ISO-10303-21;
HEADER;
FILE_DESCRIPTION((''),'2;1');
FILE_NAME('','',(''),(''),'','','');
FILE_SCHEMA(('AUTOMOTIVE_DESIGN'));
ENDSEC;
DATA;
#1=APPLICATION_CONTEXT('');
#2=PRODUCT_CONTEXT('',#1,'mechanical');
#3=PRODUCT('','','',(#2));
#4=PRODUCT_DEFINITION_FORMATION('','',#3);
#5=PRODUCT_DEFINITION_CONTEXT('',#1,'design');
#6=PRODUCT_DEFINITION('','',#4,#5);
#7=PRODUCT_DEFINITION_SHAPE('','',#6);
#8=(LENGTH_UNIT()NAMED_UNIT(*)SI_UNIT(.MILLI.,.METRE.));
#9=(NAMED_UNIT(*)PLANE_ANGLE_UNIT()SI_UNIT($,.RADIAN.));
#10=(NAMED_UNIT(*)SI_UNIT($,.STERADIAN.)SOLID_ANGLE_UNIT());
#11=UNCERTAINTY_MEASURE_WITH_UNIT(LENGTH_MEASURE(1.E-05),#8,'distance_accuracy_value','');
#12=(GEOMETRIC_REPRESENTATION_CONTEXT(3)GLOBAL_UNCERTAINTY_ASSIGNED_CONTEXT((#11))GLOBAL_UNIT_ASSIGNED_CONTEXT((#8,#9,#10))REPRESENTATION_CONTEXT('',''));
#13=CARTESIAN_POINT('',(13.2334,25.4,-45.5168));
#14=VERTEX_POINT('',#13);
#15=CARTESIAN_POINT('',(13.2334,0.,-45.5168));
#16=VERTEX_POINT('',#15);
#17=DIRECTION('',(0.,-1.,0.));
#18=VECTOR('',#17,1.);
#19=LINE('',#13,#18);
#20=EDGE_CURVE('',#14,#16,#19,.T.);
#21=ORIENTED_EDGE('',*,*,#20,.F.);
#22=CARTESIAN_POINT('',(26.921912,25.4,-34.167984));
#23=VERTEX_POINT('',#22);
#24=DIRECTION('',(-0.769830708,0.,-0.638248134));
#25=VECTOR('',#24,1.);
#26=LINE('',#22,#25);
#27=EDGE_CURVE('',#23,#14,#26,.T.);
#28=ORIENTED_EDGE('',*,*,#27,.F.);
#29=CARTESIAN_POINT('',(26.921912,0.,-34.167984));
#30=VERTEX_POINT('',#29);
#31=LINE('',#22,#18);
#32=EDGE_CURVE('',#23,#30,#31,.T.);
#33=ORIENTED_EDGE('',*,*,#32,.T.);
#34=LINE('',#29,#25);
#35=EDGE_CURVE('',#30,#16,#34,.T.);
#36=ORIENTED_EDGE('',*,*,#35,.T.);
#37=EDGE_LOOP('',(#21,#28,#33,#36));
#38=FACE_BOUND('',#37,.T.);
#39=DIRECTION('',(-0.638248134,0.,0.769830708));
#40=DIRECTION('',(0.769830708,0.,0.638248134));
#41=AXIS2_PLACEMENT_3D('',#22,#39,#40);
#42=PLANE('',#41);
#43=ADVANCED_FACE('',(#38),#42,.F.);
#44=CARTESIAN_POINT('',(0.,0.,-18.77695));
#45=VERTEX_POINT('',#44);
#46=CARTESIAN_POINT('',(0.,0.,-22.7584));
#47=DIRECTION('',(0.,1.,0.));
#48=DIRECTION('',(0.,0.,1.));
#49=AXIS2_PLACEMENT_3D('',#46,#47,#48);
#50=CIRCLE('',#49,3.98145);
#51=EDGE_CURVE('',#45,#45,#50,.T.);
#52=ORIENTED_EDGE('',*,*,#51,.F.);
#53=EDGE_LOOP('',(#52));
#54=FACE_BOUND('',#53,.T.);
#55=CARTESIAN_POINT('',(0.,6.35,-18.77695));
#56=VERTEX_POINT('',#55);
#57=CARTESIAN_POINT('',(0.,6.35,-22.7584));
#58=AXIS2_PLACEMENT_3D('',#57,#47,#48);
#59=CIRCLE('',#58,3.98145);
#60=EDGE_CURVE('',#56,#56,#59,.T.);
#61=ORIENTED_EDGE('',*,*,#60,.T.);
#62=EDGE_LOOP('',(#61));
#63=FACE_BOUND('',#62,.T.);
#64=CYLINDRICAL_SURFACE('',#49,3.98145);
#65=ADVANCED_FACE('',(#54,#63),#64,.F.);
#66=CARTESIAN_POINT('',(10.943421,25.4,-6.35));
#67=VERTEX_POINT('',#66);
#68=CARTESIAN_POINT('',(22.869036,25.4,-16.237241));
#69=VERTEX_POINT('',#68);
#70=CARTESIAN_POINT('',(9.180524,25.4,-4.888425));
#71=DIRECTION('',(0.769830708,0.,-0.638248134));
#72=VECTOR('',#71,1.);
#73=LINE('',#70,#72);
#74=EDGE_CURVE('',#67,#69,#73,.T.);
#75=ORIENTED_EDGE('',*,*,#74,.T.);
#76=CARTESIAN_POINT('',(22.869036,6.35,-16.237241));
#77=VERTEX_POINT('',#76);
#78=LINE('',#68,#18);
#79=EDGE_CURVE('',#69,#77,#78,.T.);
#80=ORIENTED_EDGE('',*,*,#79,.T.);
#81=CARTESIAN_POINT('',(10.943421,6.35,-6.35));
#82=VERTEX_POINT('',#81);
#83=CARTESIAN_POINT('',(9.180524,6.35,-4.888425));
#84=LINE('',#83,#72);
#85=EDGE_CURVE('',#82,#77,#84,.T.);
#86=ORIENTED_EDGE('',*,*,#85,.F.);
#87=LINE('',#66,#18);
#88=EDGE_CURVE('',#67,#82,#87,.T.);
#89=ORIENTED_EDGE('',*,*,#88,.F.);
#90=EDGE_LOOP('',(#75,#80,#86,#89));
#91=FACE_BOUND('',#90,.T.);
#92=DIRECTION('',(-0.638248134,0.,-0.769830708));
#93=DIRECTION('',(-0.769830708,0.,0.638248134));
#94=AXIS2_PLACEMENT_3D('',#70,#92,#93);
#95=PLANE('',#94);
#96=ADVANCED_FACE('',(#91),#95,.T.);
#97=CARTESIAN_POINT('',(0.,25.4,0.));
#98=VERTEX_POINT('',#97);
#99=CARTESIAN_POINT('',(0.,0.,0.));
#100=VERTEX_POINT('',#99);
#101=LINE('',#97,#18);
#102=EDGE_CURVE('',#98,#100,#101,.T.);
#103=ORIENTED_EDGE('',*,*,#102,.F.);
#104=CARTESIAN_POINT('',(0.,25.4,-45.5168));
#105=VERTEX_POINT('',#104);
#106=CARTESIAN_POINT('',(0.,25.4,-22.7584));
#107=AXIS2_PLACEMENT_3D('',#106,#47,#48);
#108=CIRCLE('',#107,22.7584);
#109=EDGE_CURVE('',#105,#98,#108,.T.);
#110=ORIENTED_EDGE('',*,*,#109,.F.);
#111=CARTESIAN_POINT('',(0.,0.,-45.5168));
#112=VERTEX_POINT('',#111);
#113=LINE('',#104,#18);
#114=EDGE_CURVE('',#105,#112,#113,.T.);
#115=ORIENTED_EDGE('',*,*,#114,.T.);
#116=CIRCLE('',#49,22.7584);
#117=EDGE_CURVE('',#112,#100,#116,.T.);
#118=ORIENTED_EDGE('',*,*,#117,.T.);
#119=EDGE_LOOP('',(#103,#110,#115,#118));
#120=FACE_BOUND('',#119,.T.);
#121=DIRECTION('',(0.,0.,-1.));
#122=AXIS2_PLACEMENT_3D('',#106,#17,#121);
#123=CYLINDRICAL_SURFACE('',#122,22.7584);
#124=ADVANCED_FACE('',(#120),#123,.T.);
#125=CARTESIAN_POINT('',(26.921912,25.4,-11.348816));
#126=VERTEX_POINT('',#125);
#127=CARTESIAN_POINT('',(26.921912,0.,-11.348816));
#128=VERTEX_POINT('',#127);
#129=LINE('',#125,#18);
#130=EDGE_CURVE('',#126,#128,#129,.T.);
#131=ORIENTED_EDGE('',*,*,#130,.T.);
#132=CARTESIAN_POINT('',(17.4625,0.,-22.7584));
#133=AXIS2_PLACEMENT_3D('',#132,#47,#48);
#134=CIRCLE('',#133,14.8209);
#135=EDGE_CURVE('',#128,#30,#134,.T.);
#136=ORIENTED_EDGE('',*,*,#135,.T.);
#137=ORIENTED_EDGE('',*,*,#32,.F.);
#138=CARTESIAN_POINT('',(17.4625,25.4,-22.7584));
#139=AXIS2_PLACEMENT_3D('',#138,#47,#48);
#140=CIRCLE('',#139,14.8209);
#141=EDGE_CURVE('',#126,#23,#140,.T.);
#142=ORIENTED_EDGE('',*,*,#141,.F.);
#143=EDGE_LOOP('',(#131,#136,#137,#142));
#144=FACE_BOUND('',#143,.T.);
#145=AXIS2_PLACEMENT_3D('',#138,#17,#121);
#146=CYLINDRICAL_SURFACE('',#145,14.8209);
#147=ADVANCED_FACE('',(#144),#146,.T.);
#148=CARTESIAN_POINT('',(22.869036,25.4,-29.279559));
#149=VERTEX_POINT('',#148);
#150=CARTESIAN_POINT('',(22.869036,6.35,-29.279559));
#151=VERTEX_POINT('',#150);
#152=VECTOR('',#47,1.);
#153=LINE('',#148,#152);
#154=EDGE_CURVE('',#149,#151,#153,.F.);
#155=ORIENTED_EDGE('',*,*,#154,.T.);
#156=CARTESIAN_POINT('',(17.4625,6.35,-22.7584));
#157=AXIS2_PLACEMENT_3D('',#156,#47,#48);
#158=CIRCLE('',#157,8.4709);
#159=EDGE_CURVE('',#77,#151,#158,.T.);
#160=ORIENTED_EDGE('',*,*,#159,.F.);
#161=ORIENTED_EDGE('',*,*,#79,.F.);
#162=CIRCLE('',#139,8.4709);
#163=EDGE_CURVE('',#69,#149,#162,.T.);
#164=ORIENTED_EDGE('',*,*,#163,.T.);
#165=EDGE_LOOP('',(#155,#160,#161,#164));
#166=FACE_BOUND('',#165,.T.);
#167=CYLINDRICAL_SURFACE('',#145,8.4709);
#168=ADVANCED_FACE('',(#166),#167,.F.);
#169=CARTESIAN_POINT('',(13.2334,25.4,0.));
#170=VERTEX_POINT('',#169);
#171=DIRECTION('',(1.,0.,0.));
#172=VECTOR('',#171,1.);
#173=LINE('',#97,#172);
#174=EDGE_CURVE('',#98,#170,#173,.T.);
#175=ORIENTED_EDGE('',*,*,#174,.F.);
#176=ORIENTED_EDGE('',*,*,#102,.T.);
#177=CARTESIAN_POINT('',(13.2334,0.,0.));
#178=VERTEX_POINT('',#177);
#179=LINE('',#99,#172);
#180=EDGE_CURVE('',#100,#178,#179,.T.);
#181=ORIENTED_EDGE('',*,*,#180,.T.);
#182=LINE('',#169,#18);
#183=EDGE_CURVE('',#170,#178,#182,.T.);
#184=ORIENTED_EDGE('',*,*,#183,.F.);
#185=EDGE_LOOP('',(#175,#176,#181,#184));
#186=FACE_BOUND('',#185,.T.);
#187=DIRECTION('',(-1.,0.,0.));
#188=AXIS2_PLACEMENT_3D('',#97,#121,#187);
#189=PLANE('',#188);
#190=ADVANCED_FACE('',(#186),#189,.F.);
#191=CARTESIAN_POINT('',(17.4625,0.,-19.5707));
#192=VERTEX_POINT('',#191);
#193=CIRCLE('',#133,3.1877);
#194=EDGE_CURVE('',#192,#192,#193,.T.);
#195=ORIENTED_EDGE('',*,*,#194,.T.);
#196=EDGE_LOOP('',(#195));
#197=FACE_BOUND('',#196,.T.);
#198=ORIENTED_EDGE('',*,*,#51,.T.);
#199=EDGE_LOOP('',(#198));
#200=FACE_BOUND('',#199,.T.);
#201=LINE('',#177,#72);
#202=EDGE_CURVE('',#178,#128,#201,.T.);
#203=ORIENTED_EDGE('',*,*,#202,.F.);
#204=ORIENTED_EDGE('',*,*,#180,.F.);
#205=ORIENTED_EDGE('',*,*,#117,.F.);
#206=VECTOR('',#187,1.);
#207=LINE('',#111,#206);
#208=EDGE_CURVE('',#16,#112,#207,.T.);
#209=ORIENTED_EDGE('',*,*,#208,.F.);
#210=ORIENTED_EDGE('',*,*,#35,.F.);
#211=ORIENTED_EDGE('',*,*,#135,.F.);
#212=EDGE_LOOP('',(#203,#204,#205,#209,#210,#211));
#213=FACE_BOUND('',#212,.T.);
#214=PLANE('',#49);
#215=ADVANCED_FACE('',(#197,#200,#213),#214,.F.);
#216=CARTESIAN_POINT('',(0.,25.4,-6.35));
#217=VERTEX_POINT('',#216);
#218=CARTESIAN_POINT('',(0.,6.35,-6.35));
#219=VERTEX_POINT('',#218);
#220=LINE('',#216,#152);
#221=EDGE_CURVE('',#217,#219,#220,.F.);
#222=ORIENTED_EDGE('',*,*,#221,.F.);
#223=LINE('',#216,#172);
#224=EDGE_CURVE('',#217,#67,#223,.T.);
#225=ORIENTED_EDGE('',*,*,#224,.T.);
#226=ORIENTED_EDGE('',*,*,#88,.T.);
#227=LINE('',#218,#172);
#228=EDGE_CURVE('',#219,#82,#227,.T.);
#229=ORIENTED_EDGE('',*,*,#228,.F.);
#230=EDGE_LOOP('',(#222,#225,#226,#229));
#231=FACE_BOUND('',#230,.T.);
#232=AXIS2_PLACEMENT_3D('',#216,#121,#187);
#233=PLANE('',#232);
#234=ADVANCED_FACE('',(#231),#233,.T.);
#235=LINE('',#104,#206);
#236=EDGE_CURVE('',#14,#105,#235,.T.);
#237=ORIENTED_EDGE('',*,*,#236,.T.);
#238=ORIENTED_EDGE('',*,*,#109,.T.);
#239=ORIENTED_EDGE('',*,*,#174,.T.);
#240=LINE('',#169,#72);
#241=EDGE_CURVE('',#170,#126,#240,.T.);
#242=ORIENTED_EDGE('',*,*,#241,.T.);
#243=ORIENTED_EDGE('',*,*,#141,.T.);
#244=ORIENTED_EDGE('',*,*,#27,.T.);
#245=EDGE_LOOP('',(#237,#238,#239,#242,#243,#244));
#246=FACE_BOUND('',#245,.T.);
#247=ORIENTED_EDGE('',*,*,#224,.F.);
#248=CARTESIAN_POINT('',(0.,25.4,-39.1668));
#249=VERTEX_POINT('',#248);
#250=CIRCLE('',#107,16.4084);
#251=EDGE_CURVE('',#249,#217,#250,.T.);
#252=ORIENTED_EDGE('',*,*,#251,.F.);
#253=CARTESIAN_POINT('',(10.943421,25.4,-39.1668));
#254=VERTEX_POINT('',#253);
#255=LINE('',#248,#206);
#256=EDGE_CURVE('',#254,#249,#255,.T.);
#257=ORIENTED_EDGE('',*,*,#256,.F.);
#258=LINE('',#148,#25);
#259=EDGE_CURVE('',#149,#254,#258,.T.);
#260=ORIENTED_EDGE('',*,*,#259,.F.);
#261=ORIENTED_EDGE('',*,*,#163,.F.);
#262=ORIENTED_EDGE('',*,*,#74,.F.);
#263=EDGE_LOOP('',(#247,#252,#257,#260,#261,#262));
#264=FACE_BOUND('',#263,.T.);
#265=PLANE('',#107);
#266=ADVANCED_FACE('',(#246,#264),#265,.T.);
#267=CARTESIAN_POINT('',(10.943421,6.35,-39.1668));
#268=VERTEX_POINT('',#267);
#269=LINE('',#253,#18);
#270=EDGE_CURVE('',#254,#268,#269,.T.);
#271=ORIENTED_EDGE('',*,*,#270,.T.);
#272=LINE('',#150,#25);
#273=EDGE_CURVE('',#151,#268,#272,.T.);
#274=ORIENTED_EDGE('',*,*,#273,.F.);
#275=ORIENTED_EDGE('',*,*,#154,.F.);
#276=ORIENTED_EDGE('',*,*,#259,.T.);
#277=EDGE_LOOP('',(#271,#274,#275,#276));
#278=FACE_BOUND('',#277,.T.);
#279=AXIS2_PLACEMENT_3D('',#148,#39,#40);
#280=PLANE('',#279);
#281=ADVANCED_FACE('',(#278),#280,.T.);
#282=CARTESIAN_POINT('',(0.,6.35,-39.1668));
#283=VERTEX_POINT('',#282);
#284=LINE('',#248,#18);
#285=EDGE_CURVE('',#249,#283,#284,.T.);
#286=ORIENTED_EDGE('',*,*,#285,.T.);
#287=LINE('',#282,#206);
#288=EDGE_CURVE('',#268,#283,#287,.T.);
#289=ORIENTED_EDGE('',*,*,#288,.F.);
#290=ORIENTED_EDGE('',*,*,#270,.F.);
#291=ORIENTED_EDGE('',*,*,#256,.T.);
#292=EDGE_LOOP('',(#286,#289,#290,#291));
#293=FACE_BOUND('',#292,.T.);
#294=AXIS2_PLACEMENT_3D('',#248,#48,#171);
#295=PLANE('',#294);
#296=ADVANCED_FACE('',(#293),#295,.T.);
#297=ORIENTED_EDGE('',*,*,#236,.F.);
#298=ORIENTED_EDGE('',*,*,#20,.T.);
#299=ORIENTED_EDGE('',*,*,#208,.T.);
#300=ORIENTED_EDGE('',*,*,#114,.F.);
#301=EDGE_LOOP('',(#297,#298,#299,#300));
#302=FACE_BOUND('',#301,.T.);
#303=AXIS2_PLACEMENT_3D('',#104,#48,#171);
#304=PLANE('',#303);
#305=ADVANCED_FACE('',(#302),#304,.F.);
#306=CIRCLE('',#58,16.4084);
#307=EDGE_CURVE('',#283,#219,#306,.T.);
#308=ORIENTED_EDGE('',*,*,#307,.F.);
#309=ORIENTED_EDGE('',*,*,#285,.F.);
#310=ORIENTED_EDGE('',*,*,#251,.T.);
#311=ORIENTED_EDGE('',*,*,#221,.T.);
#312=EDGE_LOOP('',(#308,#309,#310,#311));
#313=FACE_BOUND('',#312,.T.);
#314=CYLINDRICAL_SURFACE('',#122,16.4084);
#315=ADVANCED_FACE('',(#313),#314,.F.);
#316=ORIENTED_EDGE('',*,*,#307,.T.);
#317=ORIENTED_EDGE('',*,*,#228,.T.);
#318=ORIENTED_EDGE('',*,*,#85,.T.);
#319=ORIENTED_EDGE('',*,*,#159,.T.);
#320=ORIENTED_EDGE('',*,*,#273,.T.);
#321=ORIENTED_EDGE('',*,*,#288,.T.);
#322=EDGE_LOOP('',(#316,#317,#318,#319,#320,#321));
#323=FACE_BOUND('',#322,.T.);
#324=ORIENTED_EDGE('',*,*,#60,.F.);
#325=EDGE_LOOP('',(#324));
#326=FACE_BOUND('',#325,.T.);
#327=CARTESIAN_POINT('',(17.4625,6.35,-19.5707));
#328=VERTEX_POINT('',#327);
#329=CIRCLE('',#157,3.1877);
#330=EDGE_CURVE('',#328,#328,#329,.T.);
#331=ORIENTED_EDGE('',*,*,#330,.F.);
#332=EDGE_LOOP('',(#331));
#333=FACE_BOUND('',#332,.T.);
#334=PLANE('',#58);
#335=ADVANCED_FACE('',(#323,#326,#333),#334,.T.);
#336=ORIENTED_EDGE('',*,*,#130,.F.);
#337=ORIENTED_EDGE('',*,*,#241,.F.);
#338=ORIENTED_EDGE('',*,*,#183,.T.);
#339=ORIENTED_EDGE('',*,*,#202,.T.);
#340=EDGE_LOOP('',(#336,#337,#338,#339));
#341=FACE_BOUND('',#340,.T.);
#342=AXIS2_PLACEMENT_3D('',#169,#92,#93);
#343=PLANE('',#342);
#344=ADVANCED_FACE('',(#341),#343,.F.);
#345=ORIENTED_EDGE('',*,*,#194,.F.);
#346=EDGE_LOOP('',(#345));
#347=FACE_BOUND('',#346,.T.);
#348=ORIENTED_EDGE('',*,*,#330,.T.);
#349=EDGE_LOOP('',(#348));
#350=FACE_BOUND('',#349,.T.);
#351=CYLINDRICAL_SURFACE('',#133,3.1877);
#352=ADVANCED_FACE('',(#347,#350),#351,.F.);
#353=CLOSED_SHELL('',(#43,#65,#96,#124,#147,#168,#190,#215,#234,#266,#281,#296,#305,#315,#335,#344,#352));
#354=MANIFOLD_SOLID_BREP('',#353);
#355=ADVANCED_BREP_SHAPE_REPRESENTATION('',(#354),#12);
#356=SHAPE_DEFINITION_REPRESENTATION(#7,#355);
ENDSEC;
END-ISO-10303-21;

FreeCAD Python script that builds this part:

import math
import FreeCAD as App
import Part
import Sketcher
from FreeCAD import Vector
Q = App.Units.Quantity


def faces_at(feature, points):
    """Names of the faces that lie closest to the given points."""
    faces = feature.Shape.Faces
    near = lambda p: min(range(len(faces)), key=lambda i: faces[i].distToShape(Part.Vertex(*p))[0])
    return sorted({f"Face{near(p) + 1}" for p in points})

doc = App.newDocument("Part")
body = doc.addObject("PartDesign::Body", "Body")

# Sketch on XZ plane
sketch1 = body.newObject("Sketcher::SketchObject", "Sketch")
sketch1.AttachmentSupport = (doc.getObject("XZ_Plane"), [""])
sketch1.MapMode = "FlatFace"
sketch1.addGeometry(Part.LineSegment(Vector(13.2334, 0, 0), Vector(26.921912, -11.348816, 0)), False)
sketch1.addGeometry(Part.ArcOfCircle(Part.Circle(Vector(17.4625, -22.7584, 0), Vector(0, 0, 1), 14.8209), math.radians(-50.338689), math.radians(50.338689)), False)
sketch1.addGeometry(Part.LineSegment(Vector(26.921912, -34.167984, 0), Vector(13.2334, -45.5168, 0)), False)
sketch1.addGeometry(Part.LineSegment(Vector(13.2334, -45.5168, 0), Vector(0, -45.5168, 0)), False)
sketch1.addGeometry(Part.ArcOfCircle(Part.Circle(Vector(0, -22.7584, 0), Vector(0, 0, 1), 22.7584), math.radians(90), math.radians(270)), False)
sketch1.addGeometry(Part.LineSegment(Vector(0, 0, 0), Vector(13.2334, 0, 0)), False)
sketch1.addConstraint(Sketcher.Constraint("Tangent", 0, 2, 1, 2))
sketch1.addConstraint(Sketcher.Constraint("Tangent", 1, 1, 2, 1))
sketch1.addConstraint(Sketcher.Constraint("Coincident", 2, 2, 3, 1))
sketch1.addConstraint(Sketcher.Constraint("Tangent", 3, 2, 4, 2))
sketch1.addConstraint(Sketcher.Constraint("Tangent", 4, 1, 5, 1))
sketch1.addConstraint(Sketcher.Constraint("Coincident", 5, 2, 0, 1))
sketch1.addConstraint(Sketcher.Constraint("Horizontal", 3))
sketch1.addConstraint(Sketcher.Constraint("Horizontal", 5))
sketch1.addConstraint(Sketcher.Constraint("Coincident", 4, 1, -1, 1))
sketch1.addConstraint(Sketcher.Constraint("Horizontal", 1, 3, 4, 3))
sketch1.addConstraint(Sketcher.Constraint("Vertical", 0, 2, 1, 1))
sketch1.addConstraint(Sketcher.Constraint("Radius", 4, Q("0.896 in")))
sketch1.addConstraint(Sketcher.Constraint("Radius", 1, Q("0.5835 in")))
sketch1.addConstraint(Sketcher.Constraint("DistanceX", 3, 2, 3, 1, Q("0.521 in")))
sketch1.addConstraint(Sketcher.Constraint("DistanceX", -1, 1, 1, 3, Q("0.6875 in")))
pad1 = body.newObject("PartDesign::Pad", "Pad")
pad1.Profile = sketch1
pad1.Length = Q("1 in")
pad1.Reversed = True
doc.recompute()

thickness = body.newObject("PartDesign::Thickness", "Thickness")
thickness.Base = (pad1, faces_at(pad1, [(4.763, 25.4, -22.758)]))
thickness.Value = Q("0.25 in")
thickness.Reversed = True
thickness.Join = "Intersection"

# Sketch on XZ plane
sketch2 = body.newObject("Sketcher::SketchObject", "Sketch001")
sketch2.AttachmentSupport = (doc.getObject("XZ_Plane"), [""])
sketch2.MapMode = "FlatFace"
sketch2.AttachmentOffset = App.Placement(Vector(0, 0, -0.25 * 25.4), App.Rotation())
sketch2.addGeometry(Part.Circle(Vector(0, -22.7584, 0), Vector(0, 0, 1), 3.98145), False)
sketch2.addGeometry(Part.Circle(Vector(17.4625, -22.7584, 0), Vector(0, 0, 1), 3.1877), False)
sketch2.addConstraint(Sketcher.Constraint("PointOnObject", 0, 3, -2))
sketch2.addConstraint(Sketcher.Constraint("Horizontal", 0, 3, 1, 3))
sketch2.addConstraint(Sketcher.Constraint("Diameter", 1, Q("0.251 in")))
sketch2.addConstraint(Sketcher.Constraint("Diameter", 0, Q("0.3135 in")))
sketch2.addConstraint(Sketcher.Constraint("DistanceY", 0, 3, -1, 1, Q("0.896 in")))
sketch2.addConstraint(Sketcher.Constraint("DistanceX", -1, 1, 1, 3, Q("0.6875 in")))
pocket1 = body.newObject("PartDesign::Pocket", "Pocket")
pocket1.Profile = sketch2
pocket1.Type = "ThroughAll"
pocket1.Reversed = True

doc.recompute()
